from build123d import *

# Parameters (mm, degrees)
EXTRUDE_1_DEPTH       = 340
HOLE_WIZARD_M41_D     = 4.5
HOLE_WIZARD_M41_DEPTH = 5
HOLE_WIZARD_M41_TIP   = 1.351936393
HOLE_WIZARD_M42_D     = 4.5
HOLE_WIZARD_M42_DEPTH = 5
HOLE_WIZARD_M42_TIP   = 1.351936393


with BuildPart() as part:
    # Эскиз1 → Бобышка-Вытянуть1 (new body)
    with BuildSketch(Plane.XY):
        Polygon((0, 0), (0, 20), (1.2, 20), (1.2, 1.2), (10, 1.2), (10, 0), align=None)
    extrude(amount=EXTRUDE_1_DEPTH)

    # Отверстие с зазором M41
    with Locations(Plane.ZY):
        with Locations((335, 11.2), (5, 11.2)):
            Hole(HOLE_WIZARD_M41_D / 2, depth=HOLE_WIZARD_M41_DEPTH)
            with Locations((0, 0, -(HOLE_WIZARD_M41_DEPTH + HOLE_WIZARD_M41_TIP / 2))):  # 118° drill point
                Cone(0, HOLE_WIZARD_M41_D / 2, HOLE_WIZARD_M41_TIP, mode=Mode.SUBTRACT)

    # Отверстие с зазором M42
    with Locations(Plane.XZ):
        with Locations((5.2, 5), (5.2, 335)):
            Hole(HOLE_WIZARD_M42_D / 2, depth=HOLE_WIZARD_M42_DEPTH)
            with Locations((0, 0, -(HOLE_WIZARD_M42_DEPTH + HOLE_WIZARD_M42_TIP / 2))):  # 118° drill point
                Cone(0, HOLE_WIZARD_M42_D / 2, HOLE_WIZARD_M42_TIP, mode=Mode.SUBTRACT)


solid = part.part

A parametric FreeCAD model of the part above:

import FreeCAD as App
import Part
import Sketcher

V = App.Vector

doc = App.newDocument("Part")
body = doc.addObject("PartDesign::Body", "Body")

sketch1 = doc.addObject("Sketcher::SketchObject", "Sketch")
body.addObject(sketch1)
sketch1.AttachmentSupport = (doc.XY_Plane, [""])
sketch1.MapMode = "FlatFace"
sketch1.addGeometry(Part.LineSegment(V(0, 20, 0), V(0, 0, 0)), False)
sketch1.addGeometry(Part.LineSegment(V(0, 0, 0), V(10, 0, 0)), False)
sketch1.addGeometry(Part.LineSegment(V(10, 0, 0), V(10, 1.2, 0)), False)
sketch1.addGeometry(Part.LineSegment(V(10, 1.2, 0), V(1.2, 1.2, 0)), False)
sketch1.addGeometry(Part.LineSegment(V(1.2, 1.2, 0), V(1.2, 20, 0)), False)
sketch1.addGeometry(Part.LineSegment(V(1.2, 20, 0), V(0, 20, 0)), False)
sketch1.addConstraint(Sketcher.Constraint("Coincident", 0, 2, 1, 1))
sketch1.addConstraint(Sketcher.Constraint("Coincident", 1, 2, 2, 1))
sketch1.addConstraint(Sketcher.Constraint("Coincident", 2, 2, 3, 1))
sketch1.addConstraint(Sketcher.Constraint("Coincident", 3, 2, 4, 1))
sketch1.addConstraint(Sketcher.Constraint("Coincident", 4, 2, 5, 1))
sketch1.addConstraint(Sketcher.Constraint("Coincident", 5, 2, 0, 1))
sketch1.addConstraint(Sketcher.Constraint("Vertical", 0))
sketch1.addConstraint(Sketcher.Constraint("Horizontal", 1))
sketch1.addConstraint(Sketcher.Constraint("Vertical", 2))
sketch1.addConstraint(Sketcher.Constraint("Horizontal", 3))
sketch1.addConstraint(Sketcher.Constraint("Vertical", 4))
sketch1.addConstraint(Sketcher.Constraint("Horizontal", 5))
sketch1.addConstraint(Sketcher.Constraint("Coincident", 0, 2, -1, 1))
sketch1.addConstraint(Sketcher.Constraint("Equal", 5, 2))
sketch1.addConstraint(Sketcher.Constraint("DistanceX", 1, 1, 1, 2, 10.0))
sketch1.addConstraint(Sketcher.Constraint("DistanceY", 0, 2, 0, 1, 20.0))
sketch1.addConstraint(Sketcher.Constraint("DistanceX", 3, 2, 3, 1, 8.8))
pad1 = doc.addObject("PartDesign::Pad", "Pad")
body.addObject(pad1)
pad1.Profile = sketch1
pad1.Length = 340

sketch2 = doc.addObject("Sketcher::SketchObject", "Sketch001")
body.addObject(sketch2)
sketch2.AttachmentSupport = (doc.YZ_Plane, [""])
sketch2.MapMode = "FlatFace"
sketch2.addGeometry(Part.Circle(V(11.2, 335, 0), V(0, 0, 1), 2.25), False)
sketch2.addGeometry(Part.Circle(V(11.2, 5, 0), V(0, 0, 1), 2.25), False)
sketch2.addConstraint(Sketcher.Constraint("Equal", 0, 1))
sketch2.addConstraint(Sketcher.Constraint("Vertical", 0, 3, 1, 3))
sketch2.addConstraint(Sketcher.Constraint("Diameter", 0, 4.5))
sketch2.addConstraint(Sketcher.Constraint("DistanceY", -1, 1, 0, 3, 335.0))
sketch2.addConstraint(Sketcher.Constraint("DistanceY", -1, 1, 1, 3, 5.0))
sketch2.addConstraint(Sketcher.Constraint("DistanceX", -1, 1, 0, 3, 11.2))
doc.recompute()
hole = doc.addObject("PartDesign::Hole", "Hole")
body.addObject(hole)
hole.Profile = sketch2
hole.ThreadType = "None"
hole.Diameter = 4.5
hole.DepthType = "Dimension"
hole.Depth = 5
hole.DrillPoint = "Angled"
hole.DrillPointAngle = 118
hole.Reversed = True

sketch3 = doc.addObject("Sketcher::SketchObject", "Sketch002")
body.addObject(sketch3)
sketch3.AttachmentSupport = (doc.XZ_Plane, [""])
sketch3.MapMode = "FlatFace"
sketch3.addGeometry(Part.Circle(V(5.2, 5, 0), V(0, 0, 1), 2.25), False)
sketch3.addGeometry(Part.Circle(V(5.2, 335, 0), V(0, 0, 1), 2.25), False)
sketch3.addConstraint(Sketcher.Constraint("Equal", 0, 1))
sketch3.addConstraint(Sketcher.Constraint("Vertical", 0, 3, 1, 3))
sketch3.addConstraint(Sketcher.Constraint("Diameter", 0, 4.5))
sketch3.addConstraint(Sketcher.Constraint("DistanceY", -1, 1, 0, 3, 5.0))
sketch3.addConstraint(Sketcher.Constraint("DistanceY", -1, 1, 1, 3, 335.0))
sketch3.addConstraint(Sketcher.Constraint("DistanceX", -1, 1, 0, 3, 5.2))
doc.recompute()
hole2 = doc.addObject("PartDesign::Hole", "Hole001")
body.addObject(hole2)
hole2.Profile = sketch3
hole2.ThreadType = "None"
hole2.Diameter = 4.5
hole2.DepthType = "Dimension"
hole2.Depth = 5
hole2.DrillPoint = "Angled"
hole2.DrillPointAngle = 118

doc.recompute()
